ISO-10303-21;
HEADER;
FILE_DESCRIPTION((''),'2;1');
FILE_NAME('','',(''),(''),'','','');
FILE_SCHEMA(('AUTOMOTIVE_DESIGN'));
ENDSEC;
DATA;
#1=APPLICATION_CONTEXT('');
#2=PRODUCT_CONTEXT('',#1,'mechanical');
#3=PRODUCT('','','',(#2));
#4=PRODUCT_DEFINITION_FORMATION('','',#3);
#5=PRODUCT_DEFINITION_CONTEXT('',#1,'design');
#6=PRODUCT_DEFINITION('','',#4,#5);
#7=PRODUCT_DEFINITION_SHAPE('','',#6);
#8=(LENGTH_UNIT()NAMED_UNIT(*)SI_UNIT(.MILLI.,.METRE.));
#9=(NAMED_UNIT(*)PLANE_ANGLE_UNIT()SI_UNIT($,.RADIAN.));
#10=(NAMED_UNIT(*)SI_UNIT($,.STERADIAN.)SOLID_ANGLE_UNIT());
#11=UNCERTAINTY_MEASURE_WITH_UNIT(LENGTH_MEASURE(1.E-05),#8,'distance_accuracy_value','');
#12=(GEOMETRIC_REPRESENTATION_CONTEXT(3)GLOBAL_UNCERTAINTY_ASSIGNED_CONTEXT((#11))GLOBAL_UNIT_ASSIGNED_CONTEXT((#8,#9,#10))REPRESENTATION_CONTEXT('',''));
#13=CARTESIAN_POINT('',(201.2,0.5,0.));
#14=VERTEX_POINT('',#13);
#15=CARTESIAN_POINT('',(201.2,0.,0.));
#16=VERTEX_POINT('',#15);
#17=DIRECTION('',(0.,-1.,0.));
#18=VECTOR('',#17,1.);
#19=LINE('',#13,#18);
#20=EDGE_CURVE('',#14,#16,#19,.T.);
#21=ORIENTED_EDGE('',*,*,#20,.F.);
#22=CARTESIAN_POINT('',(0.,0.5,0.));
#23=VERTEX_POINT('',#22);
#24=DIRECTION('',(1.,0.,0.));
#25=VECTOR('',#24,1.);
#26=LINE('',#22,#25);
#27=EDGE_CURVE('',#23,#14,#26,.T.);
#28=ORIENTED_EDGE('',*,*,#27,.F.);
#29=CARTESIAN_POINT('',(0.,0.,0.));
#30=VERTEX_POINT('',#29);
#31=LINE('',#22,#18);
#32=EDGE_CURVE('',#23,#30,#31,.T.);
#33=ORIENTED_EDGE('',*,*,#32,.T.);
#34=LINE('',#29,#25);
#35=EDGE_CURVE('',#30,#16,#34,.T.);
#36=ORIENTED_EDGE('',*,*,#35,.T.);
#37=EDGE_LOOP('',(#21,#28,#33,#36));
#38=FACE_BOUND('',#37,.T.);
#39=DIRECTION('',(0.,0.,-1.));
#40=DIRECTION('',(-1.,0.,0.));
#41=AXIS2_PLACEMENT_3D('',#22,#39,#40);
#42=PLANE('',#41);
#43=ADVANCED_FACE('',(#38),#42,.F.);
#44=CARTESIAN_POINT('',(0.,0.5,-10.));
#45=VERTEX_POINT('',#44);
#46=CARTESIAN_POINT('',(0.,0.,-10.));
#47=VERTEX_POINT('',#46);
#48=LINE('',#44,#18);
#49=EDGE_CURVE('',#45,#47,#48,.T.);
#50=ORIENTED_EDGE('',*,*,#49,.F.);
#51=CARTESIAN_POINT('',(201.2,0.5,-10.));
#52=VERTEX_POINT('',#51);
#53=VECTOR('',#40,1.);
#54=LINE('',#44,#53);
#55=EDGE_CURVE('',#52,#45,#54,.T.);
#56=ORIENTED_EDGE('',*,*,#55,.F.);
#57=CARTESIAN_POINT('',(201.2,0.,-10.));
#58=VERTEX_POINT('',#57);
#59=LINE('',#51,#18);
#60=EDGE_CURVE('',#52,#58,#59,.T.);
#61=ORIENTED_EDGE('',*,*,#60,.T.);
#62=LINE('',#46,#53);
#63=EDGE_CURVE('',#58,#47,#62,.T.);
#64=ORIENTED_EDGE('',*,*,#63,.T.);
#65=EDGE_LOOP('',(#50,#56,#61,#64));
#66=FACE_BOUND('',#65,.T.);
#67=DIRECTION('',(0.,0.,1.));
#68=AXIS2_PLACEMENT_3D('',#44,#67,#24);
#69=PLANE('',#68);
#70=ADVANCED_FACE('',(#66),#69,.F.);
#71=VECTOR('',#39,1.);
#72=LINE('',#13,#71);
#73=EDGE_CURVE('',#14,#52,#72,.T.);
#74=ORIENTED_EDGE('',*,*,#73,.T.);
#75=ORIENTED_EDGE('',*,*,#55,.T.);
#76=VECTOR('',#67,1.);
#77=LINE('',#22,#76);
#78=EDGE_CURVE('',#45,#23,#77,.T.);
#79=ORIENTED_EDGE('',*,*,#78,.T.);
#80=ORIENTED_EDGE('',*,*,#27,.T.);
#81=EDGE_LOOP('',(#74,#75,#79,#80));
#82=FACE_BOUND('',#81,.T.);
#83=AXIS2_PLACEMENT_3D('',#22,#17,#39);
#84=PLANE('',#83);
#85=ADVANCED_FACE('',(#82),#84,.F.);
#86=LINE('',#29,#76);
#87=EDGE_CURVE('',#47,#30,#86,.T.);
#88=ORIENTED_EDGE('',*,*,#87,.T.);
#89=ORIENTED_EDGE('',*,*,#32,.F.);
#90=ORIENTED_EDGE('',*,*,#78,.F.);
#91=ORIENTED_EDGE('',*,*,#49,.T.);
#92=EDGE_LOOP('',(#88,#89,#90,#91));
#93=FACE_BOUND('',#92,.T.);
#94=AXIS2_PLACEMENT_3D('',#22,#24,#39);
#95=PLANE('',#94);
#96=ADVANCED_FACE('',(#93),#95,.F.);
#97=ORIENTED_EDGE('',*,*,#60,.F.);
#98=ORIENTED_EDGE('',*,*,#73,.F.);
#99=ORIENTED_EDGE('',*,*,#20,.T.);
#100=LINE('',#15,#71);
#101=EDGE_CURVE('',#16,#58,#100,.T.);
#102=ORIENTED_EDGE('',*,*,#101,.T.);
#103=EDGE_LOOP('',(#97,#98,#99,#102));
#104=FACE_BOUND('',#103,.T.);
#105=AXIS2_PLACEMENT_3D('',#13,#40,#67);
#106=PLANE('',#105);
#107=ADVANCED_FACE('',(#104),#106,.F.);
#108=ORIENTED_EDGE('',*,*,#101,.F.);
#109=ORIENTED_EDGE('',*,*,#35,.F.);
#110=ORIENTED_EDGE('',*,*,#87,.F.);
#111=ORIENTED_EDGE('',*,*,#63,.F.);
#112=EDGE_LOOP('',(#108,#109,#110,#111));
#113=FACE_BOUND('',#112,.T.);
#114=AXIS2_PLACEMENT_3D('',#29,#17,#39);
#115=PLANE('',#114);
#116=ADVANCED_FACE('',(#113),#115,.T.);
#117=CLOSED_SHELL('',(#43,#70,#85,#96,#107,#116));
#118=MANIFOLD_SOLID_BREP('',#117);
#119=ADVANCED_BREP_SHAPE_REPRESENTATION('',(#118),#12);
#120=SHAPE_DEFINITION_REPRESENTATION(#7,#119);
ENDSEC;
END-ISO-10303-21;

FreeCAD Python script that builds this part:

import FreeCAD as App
import Part
import Sketcher
from FreeCAD import Vector
Q = App.Units.Quantity

doc = App.newDocument("Part")
body = doc.addObject("PartDesign::Body", "Body")

# Sketch on XZ plane
sketch1 = body.newObject("Sketcher::SketchObject", "Sketch")
sketch1.AttachmentSupport = (doc.getObject("XZ_Plane"), [""])
sketch1.MapMode = "FlatFace"
sketch1.addGeometry(Part.LineSegment(Vector(0, -10, 0), Vector(0, 0, 0)), False)
sketch1.addGeometry(Part.LineSegment(Vector(0, 0, 0), Vector(201, 0, 0)), False)
sketch1.addGeometry(Part.LineSegment(Vector(201, 0, 0), Vector(201, -10, 0)), False)
sketch1.addGeometry(Part.LineSegment(Vector(201, -10, 0), Vector(0, -10, 0)), False)
sketch1.addConstraint(Sketcher.Constraint("Coincident", 0, 2, 1, 1))
sketch1.addConstraint(Sketcher.Constraint("Coincident", 1, 2, 2, 1))
sketch1.addConstraint(Sketcher.Constraint("Coincident", 2, 2, 3, 1))
sketch1.addConstraint(Sketcher.Constraint("Coincident", 3, 2, 0, 1))
sketch1.addConstraint(Sketcher.Constraint("Vertical", 0))
sketch1.addConstraint(Sketcher.Constraint("Horizontal", 1))
sketch1.addConstraint(Sketcher.Constraint("Vertical", 2))
sketch1.addConstraint(Sketcher.Constraint("Horizontal", 3))
sketch1.addConstraint(Sketcher.Constraint("Coincident", 0, 2, -1, 1))
sketch1.addConstraint(Sketcher.Constraint("DistanceY", 0, 1, 0, 2, Q("10 mm")))
sketch1.addConstraint(Sketcher.Constraint("DistanceX", 1, 1, 1, 2, Q("201.2 mm")))
pad1 = body.newObject("PartDesign::Pad", "Pad")
pad1.Profile = sketch1
pad1.Length = 0.5
pad1.Reversed = True

doc.recompute()
